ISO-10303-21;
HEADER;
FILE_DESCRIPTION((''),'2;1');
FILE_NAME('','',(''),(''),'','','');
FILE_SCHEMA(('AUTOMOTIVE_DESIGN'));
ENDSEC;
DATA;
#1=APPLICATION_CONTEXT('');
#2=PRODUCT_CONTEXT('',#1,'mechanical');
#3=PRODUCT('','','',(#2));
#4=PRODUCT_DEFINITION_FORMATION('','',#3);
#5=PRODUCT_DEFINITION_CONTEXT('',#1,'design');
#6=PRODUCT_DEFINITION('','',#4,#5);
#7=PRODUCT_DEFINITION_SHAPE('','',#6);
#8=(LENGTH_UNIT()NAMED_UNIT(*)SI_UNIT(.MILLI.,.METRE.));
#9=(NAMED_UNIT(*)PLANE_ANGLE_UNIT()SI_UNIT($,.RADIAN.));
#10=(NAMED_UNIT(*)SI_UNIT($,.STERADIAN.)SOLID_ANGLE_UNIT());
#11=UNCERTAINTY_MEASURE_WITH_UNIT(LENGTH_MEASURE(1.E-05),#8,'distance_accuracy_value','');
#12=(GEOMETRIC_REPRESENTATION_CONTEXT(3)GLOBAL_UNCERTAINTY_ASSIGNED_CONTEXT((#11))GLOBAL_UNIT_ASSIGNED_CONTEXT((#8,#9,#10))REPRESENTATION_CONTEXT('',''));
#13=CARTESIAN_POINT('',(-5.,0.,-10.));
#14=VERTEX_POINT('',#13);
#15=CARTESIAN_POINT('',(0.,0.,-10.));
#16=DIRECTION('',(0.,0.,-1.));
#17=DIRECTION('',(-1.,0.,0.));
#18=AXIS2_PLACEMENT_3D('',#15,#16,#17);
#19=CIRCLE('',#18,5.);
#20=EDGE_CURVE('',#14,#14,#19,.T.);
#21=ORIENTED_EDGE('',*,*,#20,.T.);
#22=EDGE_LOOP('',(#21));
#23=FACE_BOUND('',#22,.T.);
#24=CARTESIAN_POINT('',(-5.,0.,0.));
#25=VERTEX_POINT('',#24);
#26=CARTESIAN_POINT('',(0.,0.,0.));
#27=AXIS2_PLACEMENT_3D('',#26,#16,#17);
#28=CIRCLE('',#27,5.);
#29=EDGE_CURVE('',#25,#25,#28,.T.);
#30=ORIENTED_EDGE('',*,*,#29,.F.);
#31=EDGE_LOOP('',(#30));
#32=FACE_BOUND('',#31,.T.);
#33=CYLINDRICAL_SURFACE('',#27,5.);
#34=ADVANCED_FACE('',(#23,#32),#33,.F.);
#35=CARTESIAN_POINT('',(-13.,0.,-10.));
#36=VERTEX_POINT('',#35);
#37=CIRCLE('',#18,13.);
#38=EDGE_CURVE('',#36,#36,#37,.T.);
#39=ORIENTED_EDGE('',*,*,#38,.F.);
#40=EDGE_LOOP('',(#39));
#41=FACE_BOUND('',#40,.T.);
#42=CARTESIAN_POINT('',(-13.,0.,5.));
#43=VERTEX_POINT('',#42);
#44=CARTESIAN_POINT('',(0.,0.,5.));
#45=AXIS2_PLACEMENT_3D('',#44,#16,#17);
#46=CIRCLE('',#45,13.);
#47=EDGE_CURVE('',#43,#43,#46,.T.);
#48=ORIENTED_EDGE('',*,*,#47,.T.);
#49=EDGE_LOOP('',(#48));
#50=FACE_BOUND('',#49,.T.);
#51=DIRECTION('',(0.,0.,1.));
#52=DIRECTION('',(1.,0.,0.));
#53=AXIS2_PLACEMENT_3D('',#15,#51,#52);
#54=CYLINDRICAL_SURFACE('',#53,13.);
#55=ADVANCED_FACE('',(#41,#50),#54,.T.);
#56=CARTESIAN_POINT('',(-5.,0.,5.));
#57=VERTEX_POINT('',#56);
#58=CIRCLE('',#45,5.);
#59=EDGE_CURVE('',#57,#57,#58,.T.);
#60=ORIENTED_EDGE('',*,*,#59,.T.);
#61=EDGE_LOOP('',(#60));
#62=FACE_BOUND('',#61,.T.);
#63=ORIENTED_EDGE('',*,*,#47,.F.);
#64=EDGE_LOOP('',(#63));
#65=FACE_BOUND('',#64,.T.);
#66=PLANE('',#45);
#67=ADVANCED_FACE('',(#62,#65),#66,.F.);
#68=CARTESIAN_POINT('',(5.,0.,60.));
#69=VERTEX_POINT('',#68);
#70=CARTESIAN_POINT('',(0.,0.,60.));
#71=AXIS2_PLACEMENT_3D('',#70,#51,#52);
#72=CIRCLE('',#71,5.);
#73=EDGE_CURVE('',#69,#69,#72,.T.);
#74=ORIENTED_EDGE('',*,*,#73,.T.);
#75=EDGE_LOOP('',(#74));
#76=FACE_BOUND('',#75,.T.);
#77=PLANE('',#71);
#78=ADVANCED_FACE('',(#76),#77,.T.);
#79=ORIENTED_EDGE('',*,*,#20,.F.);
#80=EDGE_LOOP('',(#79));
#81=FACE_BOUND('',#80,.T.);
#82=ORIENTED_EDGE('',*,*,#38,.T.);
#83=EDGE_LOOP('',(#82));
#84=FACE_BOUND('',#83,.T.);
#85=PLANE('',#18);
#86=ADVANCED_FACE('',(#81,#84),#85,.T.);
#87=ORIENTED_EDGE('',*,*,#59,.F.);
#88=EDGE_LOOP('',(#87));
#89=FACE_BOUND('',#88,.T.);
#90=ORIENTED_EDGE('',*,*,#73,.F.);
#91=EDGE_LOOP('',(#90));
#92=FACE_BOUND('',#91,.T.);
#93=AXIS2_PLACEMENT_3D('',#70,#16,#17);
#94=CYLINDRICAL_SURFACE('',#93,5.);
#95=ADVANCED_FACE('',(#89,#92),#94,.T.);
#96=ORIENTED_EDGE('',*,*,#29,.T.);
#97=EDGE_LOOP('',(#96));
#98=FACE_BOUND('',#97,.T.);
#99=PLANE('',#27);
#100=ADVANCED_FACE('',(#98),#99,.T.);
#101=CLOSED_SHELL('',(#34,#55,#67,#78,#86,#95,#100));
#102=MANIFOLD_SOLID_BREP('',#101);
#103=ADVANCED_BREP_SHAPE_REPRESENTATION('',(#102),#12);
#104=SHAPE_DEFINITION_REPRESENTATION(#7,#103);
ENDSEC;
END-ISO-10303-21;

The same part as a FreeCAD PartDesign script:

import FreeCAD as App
import Part
import Sketcher

V = App.Vector
Q = App.Units.Quantity

doc = App.newDocument("Part")
body = doc.addObject("PartDesign::Body", "Body")

sketch1 = body.newObject("Sketcher::SketchObject", "Sketch")
sketch1.AttachmentSupport = (doc.getObject("XY_Plane"), [""])
sketch1.MapMode = "FlatFace"
sketch1.addGeometry(Part.Circle(V(0, 0, 0), V(0, 0, 1), 5), False)
sketch1.addConstraint(Sketcher.Constraint("Coincident", 0, 3, -1, 1))
sketch1.addConstraint(Sketcher.Constraint("Diameter", 0, Q("10 mm")))
pad1 = body.newObject("PartDesign::Pad", "Pad")
pad1.Profile = sketch1
pad1.Length = 60

sketch2 = body.newObject("Sketcher::SketchObject", "Sketch001")
sketch2.AttachmentSupport = (doc.getObject("XY_Plane"), [""])
sketch2.MapMode = "FlatFace"
sketch2.AttachmentOffset = App.Placement(V(0, 0, 5), App.Rotation())
sketch2.addGeometry(Part.Circle(V(0, 0, 0), V(0, 0, 1), 13), False)
sketch2.addConstraint(Sketcher.Constraint("Coincident", 0, 3, -1, 1))
sketch2.addConstraint(Sketcher.Constraint("Diameter", 0, Q("26 mm")))
pad2 = body.newObject("PartDesign::Pad", "Pad001")
pad2.Profile = sketch2
pad2.Length = 15
pad2.Reversed = True

sketch3 = body.newObject("Sketcher::SketchObject", "Sketch002")
sketch3.AttachmentSupport = (doc.getObject("XY_Plane"), [""])
sketch3.MapMode = "FlatFace"
sketch3.AttachmentOffset = App.Placement(V(0, 0, -10), App.Rotation())
sketch3.addGeometry(Part.Circle(V(0, 0, 0), V(0, 0, 1), 5), False)
sketch3.addConstraint(Sketcher.Constraint("Coincident", 0, 3, -1, 1))
sketch3.addConstraint(Sketcher.Constraint("Diameter", 0, Q("10 mm")))
pocket1 = body.newObject("PartDesign::Pocket", "Pocket")
pocket1.Profile = sketch3
pocket1.Length = 10
pocket1.Reversed = True

doc.recompute()
